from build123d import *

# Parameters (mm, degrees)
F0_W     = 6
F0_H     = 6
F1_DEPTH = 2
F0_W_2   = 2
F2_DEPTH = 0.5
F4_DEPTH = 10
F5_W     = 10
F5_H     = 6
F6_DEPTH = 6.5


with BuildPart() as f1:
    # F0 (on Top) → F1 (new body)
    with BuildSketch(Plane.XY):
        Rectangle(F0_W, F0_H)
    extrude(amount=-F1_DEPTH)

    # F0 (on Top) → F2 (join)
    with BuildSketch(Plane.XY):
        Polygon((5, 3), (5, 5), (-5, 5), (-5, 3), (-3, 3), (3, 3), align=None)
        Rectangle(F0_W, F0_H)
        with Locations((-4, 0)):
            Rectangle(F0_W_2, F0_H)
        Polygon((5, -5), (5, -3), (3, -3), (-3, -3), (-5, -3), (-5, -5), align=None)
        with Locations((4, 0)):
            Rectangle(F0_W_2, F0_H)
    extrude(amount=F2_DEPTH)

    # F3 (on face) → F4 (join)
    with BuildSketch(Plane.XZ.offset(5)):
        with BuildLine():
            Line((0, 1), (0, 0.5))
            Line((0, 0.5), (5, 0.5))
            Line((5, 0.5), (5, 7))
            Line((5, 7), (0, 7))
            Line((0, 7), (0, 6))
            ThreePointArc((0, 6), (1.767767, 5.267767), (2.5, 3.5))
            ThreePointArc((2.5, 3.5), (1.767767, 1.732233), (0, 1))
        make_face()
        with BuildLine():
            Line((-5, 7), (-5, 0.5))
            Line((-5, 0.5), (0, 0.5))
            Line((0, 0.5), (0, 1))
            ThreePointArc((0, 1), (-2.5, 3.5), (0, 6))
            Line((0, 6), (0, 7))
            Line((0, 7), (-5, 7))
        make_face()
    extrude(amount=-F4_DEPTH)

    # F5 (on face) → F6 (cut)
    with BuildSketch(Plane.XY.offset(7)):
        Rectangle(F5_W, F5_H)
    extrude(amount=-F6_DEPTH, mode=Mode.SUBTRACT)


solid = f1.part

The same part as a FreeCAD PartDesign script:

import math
import FreeCAD as App
import Part
import Sketcher


def add_polygon(sketch, points):
    """Adds a closed chain of lines whose ends are joined by coincident constraints."""
    first, n = sketch.GeometryCount, len(points)
    for a, b in zip(points, points[1:] + points[:1]):
        sketch.addGeometry(Part.LineSegment(App.Vector(*a, 0), App.Vector(*b, 0)), False)
    for i in range(n):
        sketch.addConstraint(Sketcher.Constraint("Coincident", first + i, 2, first + (i + 1) % n, 1))

doc = App.newDocument("Part")
body = doc.addObject("PartDesign::Body", "Body")

# Sketch on XY plane
sketch1 = doc.addObject("Sketcher::SketchObject", "Sketch")
body.addObject(sketch1)
sketch1.AttachmentSupport = (doc.XY_Plane, [""])
sketch1.MapMode = "FlatFace"
add_polygon(sketch1, [(-3, 3), (-3, -3), (3, -3), (3, 3)])  # lines 0-3
sketch1.addConstraint(Sketcher.Constraint("Vertical", 0))
sketch1.addConstraint(Sketcher.Constraint("Horizontal", 1))
sketch1.addConstraint(Sketcher.Constraint("Vertical", 2))
sketch1.addConstraint(Sketcher.Constraint("Horizontal", 3))
sketch1.addConstraint(Sketcher.Constraint("Symmetric", 0, 2, 2, 2, -1, 1))
sketch1.addConstraint(Sketcher.Constraint("Equal", 3, 0))
sketch1.addConstraint(Sketcher.Constraint("DistanceX", 1, 1, 1, 2, 6.0))
pad1 = doc.addObject("PartDesign::Pad", "Pad")
body.addObject(pad1)
pad1.Profile = sketch1
pad1.Length = 2
pad1.Reversed = True

# Sketch on XY plane
sketch2 = doc.addObject("Sketcher::SketchObject", "Sketch001")
body.addObject(sketch2)
sketch2.AttachmentSupport = (doc.XY_Plane, [""])
sketch2.MapMode = "FlatFace"
add_polygon(sketch2, [(5, 5), (-5, 5), (-5, -5), (5, -5)])  # lines 0-3
sketch2.addConstraint(Sketcher.Constraint("Horizontal", 0))
sketch2.addConstraint(Sketcher.Constraint("Vertical", 1))
sketch2.addConstraint(Sketcher.Constraint("Horizontal", 2))
sketch2.addConstraint(Sketcher.Constraint("Vertical", 3))
sketch2.addConstraint(Sketcher.Constraint("Symmetric", 0, 2, 2, 2, -1, 1))
sketch2.addConstraint(Sketcher.Constraint("Equal", 2, 1))
sketch2.addConstraint(Sketcher.Constraint("DistanceX", 0, 2, 0, 1, 10.0))
pad2 = doc.addObject("PartDesign::Pad", "Pad001")
body.addObject(pad2)
pad2.Profile = sketch2
pad2.Length = 0.5

# Sketch on XZ plane
sketch3 = doc.addObject("Sketcher::SketchObject", "Sketch002")
body.addObject(sketch3)
sketch3.AttachmentSupport = (doc.XZ_Plane, [""])
sketch3.MapMode = "FlatFace"
sketch3.AttachmentOffset = App.Placement(App.Vector(0, 0, 5), App.Rotation())
add_polygon(sketch3, [(5, 0.5), (5, 7), (-5, 7), (-5, 0.5)])  # lines 0-3
sketch3.addGeometry(Part.ArcOfCircle(Part.Circle(App.Vector(0, 3.5, 0), App.Vector(0, 0, 1), 2.5), math.radians(0), math.radians(90)), False)  # 4
sketch3.addGeometry(Part.ArcOfCircle(Part.Circle(App.Vector(0, 3.5, 0), App.Vector(0, 0, 1), 2.5), math.radians(-90), math.radians(0)), False)  # 5
sketch3.addGeometry(Part.ArcOfCircle(Part.Circle(App.Vector(0, 3.5, 0), App.Vector(0, 0, 1), 2.5), math.radians(90), math.radians(270)), False)  # 6
sketch3.addConstraint(Sketcher.Constraint("Tangent", 4, 1, 5, 2))
sketch3.addConstraint(Sketcher.Constraint("Tangent", 5, 1, 6, 2))
sketch3.addConstraint(Sketcher.Constraint("Tangent", 6, 1, 4, 2))
sketch3.addConstraint(Sketcher.Constraint("Vertical", 0))
sketch3.addConstraint(Sketcher.Constraint("Horizontal", 1))
sketch3.addConstraint(Sketcher.Constraint("Vertical", 2))
sketch3.addConstraint(Sketcher.Constraint("Horizontal", 3))
sketch3.addConstraint(Sketcher.Constraint("PointOnObject", 4, 3, -2))
sketch3.addConstraint(Sketcher.Constraint("PointOnObject", 5, 1, -2))
sketch3.addConstraint(Sketcher.Constraint("PointOnObject", 6, 1, -2))
sketch3.addConstraint(Sketcher.Constraint("Horizontal", 6, 3, 4, 1))
sketch3.addConstraint(Sketcher.Constraint("Radius", 4, 2.5))
sketch3.addConstraint(Sketcher.Constraint("DistanceX", 1, 2, 1, 1, 10.0))
sketch3.addConstraint(Sketcher.Constraint("DistanceY", 0, 1, 0, 2, 6.5))
sketch3.addConstraint(Sketcher.Constraint("DistanceX", -1, 1, 0, 2, 5.0))
sketch3.addConstraint(Sketcher.Constraint("DistanceY", -1, 1, 0, 2, 7.0))
sketch3.addConstraint(Sketcher.Constraint("DistanceY", -1, 1, 5, 1, 1.0))
pad3 = doc.addObject("PartDesign::Pad", "Pad002")
body.addObject(pad3)
pad3.Profile = sketch3
pad3.Length = 10
pad3.Reversed = True

# Sketch on XY plane
sketch4 = doc.addObject("Sketcher::SketchObject", "Sketch003")
body.addObject(sketch4)
sketch4.AttachmentSupport = (doc.XY_Plane, [""])
sketch4.MapMode = "FlatFace"
sketch4.AttachmentOffset = App.Placement(App.Vector(0, 0, 7), App.Rotation())
add_polygon(sketch4, [(-5, 3), (-5, -3), (5, -3), (5, 3)])  # lines 0-3
sketch4.addConstraint(Sketcher.Constraint("Vertical", 0))
sketch4.addConstraint(Sketcher.Constraint("Horizontal", 1))
sketch4.addConstraint(Sketcher.Constraint("Vertical", 2))
sketch4.addConstraint(Sketcher.Constraint("Horizontal", 3))
sketch4.addConstraint(Sketcher.Constraint("Symmetric", 0, 2, 2, 2, -1, 1))
sketch4.addConstraint(Sketcher.Constraint("DistanceX", 1, 1, 1, 2, 10.0))
sketch4.addConstraint(Sketcher.Constraint("DistanceY", 0, 2, 0, 1, 6.0))
pocket1 = doc.addObject("PartDesign::Pocket", "Pocket")
body.addObject(pocket1)
pocket1.Profile = sketch4
pocket1.Length = 6.5

doc.recompute()
